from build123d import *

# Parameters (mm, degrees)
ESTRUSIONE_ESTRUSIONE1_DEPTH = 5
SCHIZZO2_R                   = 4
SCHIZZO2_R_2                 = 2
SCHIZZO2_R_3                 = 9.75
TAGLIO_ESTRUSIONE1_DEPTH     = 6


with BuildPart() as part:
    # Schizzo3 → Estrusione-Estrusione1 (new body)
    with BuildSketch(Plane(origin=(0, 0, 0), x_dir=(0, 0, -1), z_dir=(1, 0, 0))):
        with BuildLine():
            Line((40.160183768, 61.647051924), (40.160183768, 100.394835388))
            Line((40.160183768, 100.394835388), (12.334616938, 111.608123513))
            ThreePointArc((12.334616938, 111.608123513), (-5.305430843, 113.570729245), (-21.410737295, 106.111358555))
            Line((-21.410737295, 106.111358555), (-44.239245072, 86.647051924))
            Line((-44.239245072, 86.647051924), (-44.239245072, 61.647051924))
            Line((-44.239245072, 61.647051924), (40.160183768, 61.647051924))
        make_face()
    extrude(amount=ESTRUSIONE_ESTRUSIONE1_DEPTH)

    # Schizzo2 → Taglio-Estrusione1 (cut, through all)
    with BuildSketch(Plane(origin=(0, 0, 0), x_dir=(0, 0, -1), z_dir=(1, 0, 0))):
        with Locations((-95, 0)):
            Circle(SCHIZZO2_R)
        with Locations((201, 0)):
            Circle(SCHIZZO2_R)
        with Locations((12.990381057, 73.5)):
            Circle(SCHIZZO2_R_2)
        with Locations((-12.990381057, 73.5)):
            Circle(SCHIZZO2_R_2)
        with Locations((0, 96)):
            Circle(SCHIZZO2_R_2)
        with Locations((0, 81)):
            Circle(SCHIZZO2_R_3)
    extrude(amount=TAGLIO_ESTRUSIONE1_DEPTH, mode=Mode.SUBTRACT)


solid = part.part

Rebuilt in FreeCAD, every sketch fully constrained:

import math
import FreeCAD as App
import Part
import Sketcher
Q = App.Units.Quantity

doc = App.newDocument("Part")
params = doc.addObject("Spreadsheet::Sheet", "Params")
for row, (alias, value) in enumerate([
    ("sketch1_radius", "33 mm"),
    ("sketch1_width", "25 mm"),
    ("sketch1_length", "30 mm"),
    ("pad1_length", "5 mm"),
    ("sketch2_diameter", "8 mm"),
    ("sketch2_diameter2", "4 mm"),
    ("sketch2_diameter3", "19.5 mm"),
], start=1):
    params.set(f"A{row}", alias)
    params.set(f"B{row}", "=" + value)
    params.setAlias(f"B{row}", alias)

body = doc.addObject("PartDesign::Body", "Body")

# Sketch on YZ plane
sketch1 = body.newObject("Sketcher::SketchObject", "Sketch")
sketch1.AttachmentSupport = (doc.getObject("YZ_Plane"), [""])
sketch1.MapMode = "FlatFace"
sketch1.addGeometry(Part.LineSegment(App.Vector(61.647052, -40.160184, 0), App.Vector(100.394835, -40.160184, 0)), False)
sketch1.addGeometry(Part.LineSegment(App.Vector(100.394835, -40.160184, 0), App.Vector(111.608124, -12.334617, 0)), False)
sketch1.addGeometry(Part.ArcOfCircle(Part.Circle(App.Vector(81, 0, 0), App.Vector(0, 0, 1), 33), math.radians(-21.948699), math.radians(40.451958)), False)
sketch1.addGeometry(Part.LineSegment(App.Vector(106.111359, 21.410737, 0), App.Vector(86.647052, 44.239245, 0)), False)
sketch1.addGeometry(Part.LineSegment(App.Vector(86.647052, 44.239245, 0), App.Vector(61.647052, 44.239245, 0)), False)
sketch1.addGeometry(Part.LineSegment(App.Vector(61.647052, 44.239245, 0), App.Vector(61.647052, -40.160184, 0)), False)
sketch1.addConstraint(Sketcher.Constraint("Coincident", 0, 2, 1, 1))
sketch1.addConstraint(Sketcher.Constraint("Tangent", 1, 2, 2, 1))
sketch1.addConstraint(Sketcher.Constraint("Tangent", 2, 2, 3, 1))
sketch1.addConstraint(Sketcher.Constraint("Coincident", 3, 2, 4, 1))
sketch1.addConstraint(Sketcher.Constraint("Coincident", 4, 2, 5, 1))
sketch1.addConstraint(Sketcher.Constraint("Coincident", 5, 2, 0, 1))
sketch1.addConstraint(Sketcher.Constraint("Horizontal", 0))
sketch1.addConstraint(Sketcher.Constraint("Horizontal", 4))
sketch1.addConstraint(Sketcher.Constraint("Vertical", 5))
sketch1.addConstraint(Sketcher.Constraint("PointOnObject", 2, 3, -1))
sketch1.addConstraint(Sketcher.Constraint("Equal", 1, 3))
sketch1.addConstraint(Sketcher.Constraint("Radius", 2, Q("33 mm")))
sketch1.addConstraint(Sketcher.Constraint("DistanceX", 4, 2, 4, 1, Q("25 mm")))
sketch1.addConstraint(Sketcher.Constraint("Distance", 1, Q("30 mm")))
sketch1.addConstraint(Sketcher.Constraint("DistanceX", -1, 1, 2, 3, Q("81 mm")))
sketch1.addConstraint(Sketcher.Constraint("DistanceY", 5, 2, 5, 1, Q("84.399429 mm")))
sketch1.addConstraint(Sketcher.Constraint("DistanceX", 0, 1, 0, 2, Q("38.747783 mm")))
sketch1.setExpression("Constraints[11]", "Params.sketch1_radius")
sketch1.setExpression("Constraints[12]", "Params.sketch1_width")
sketch1.setExpression("Constraints[13]", "Params.sketch1_length")
pad1 = body.newObject("PartDesign::Pad", "Pad")
pad1.Profile = sketch1
pad1.setExpression("Length", "Params.pad1_length")

# Sketch on YZ plane
sketch2 = body.newObject("Sketcher::SketchObject", "Sketch001")
sketch2.AttachmentSupport = (doc.getObject("YZ_Plane"), [""])
sketch2.MapMode = "FlatFace"
sketch2.addGeometry(Part.Circle(App.Vector(0, 95, 0), App.Vector(0, 0, 1), 4), False)
sketch2.addGeometry(Part.Circle(App.Vector(0, -201, 0), App.Vector(0, 0, 1), 4), False)
sketch2.addGeometry(Part.Circle(App.Vector(73.5, -12.990381, 0), App.Vector(0, 0, 1), 2), False)
sketch2.addGeometry(Part.Circle(App.Vector(73.5, 12.990381, 0), App.Vector(0, 0, 1), 2), False)
sketch2.addGeometry(Part.Circle(App.Vector(96, 0, 0), App.Vector(0, 0, 1), 2), False)
sketch2.addGeometry(Part.Circle(App.Vector(81, 0, 0), App.Vector(0, 0, 1), 9.75), False)
sketch2.addConstraint(Sketcher.Constraint("Equal", 0, 1))
sketch2.addConstraint(Sketcher.Constraint("Equal", 2, 3))
sketch2.addConstraint(Sketcher.Constraint("Equal", 3, 4))
sketch2.addConstraint(Sketcher.Constraint("Symmetric", 2, 3, 3, 3, -1))
sketch2.addConstraint(Sketcher.Constraint("PointOnObject", 0, 3, -2))
sketch2.addConstraint(Sketcher.Constraint("PointOnObject", 1, 3, -2))
sketch2.addConstraint(Sketcher.Constraint("PointOnObject", 4, 3, -1))
sketch2.addConstraint(Sketcher.Constraint("PointOnObject", 5, 3, -1))
sketch2.addConstraint(Sketcher.Constraint("Diameter", 0, Q("8 mm")))
sketch2.addConstraint(Sketcher.Constraint("Diameter", 2, Q("4 mm")))
sketch2.addConstraint(Sketcher.Constraint("Diameter", 5, Q("19.5 mm")))
sketch2.addConstraint(Sketcher.Constraint("DistanceY", -1, 1, 0, 3, Q("95 mm")))
sketch2.addConstraint(Sketcher.Constraint("DistanceY", 1, 3, -1, 1, Q("201 mm")))
sketch2.addConstraint(Sketcher.Constraint("DistanceX", -1, 1, 4, 3, Q("96 mm")))
sketch2.addConstraint(Sketcher.Constraint("DistanceX", -1, 1, 5, 3, Q("81 mm")))
sketch2.addConstraint(Sketcher.Constraint("DistanceX", -1, 1, 2, 3, Q("73.5 mm")))
sketch2.addConstraint(Sketcher.Constraint("DistanceY", 2, 3, -1, 1, Q("12.990381 mm")))
sketch2.setExpression("Constraints[8]", "Params.sketch2_diameter")
sketch2.setExpression("Constraints[9]", "Params.sketch2_diameter2")
sketch2.setExpression("Constraints[10]", "Params.sketch2_diameter3")
pocket1 = body.newObject("PartDesign::Pocket", "Pocket")
pocket1.Profile = sketch2
pocket1.Type = "ThroughAll"
pocket1.Reversed = True

doc.recompute()
